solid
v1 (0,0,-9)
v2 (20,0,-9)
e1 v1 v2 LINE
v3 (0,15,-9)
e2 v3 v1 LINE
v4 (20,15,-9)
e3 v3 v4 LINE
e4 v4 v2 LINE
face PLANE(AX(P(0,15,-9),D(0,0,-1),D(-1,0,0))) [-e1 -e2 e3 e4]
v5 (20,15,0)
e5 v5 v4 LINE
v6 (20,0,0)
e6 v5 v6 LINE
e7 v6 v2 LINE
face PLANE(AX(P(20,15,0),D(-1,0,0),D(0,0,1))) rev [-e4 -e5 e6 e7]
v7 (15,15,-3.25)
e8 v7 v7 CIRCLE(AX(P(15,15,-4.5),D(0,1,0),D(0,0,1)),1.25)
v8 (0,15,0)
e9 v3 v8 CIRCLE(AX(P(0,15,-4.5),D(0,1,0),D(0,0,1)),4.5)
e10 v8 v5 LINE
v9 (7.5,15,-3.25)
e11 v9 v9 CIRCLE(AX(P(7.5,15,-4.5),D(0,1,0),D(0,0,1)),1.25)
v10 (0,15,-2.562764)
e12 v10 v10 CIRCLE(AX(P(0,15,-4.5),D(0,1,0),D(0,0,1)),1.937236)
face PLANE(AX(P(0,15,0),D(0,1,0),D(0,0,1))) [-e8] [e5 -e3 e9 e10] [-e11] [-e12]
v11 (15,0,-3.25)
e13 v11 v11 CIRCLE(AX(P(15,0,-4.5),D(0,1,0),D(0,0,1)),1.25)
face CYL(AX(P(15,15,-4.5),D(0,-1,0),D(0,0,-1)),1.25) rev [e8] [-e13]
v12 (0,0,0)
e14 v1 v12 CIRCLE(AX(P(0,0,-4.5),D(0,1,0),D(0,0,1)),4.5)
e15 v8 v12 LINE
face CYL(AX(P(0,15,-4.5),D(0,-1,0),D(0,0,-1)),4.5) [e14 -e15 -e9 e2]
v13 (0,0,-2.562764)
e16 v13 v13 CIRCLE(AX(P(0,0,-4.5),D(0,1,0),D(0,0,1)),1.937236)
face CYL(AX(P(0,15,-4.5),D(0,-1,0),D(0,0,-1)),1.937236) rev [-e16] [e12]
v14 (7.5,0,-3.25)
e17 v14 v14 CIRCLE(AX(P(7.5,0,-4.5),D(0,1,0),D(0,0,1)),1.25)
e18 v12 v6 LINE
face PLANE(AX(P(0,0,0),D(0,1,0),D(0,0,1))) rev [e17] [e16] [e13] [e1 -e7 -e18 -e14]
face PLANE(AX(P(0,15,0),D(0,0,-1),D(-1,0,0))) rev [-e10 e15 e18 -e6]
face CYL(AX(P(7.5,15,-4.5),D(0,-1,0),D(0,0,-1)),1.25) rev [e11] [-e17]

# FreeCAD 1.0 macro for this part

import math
import FreeCAD as App
import Part
import Sketcher
from FreeCAD import Vector
Q = App.Units.Quantity

doc = App.newDocument("Part")
body = doc.addObject("PartDesign::Body", "Body")

# Sketch on XZ plane
sketch1 = body.newObject("Sketcher::SketchObject", "Sketch")
sketch1.AttachmentSupport = (doc.getObject("XZ_Plane"), [""])
sketch1.MapMode = "FlatFace"
sketch1.addGeometry([
    Part.LineSegment(Vector(0, 0, 0), Vector(20, 0, 0)),  # 0
    Part.LineSegment(Vector(20, 0, 0), Vector(20, -9, 0)),  # 1
    Part.LineSegment(Vector(20, -9, 0), Vector(0, -9, 0)),  # 2
    Part.ArcOfCircle(Part.Circle(Vector(0, -4.5, 0), Vector(0, 0, 1), 4.5), math.radians(90), math.radians(270)),  # 3
    Part.Circle(Vector(0, -4.5, 0), Vector(0, 0, 1), 1.937236),  # 4
    Part.Circle(Vector(7.5, -4.5, 0), Vector(0, 0, 1), 1.25),  # 5
    Part.Circle(Vector(15, -4.5, 0), Vector(0, 0, 1), 1.25),  # 6
], False)
sketch1.addConstraint([
    Sketcher.Constraint("Coincident", 0, 2, 1, 1),
    Sketcher.Constraint("Coincident", 1, 2, 2, 1),
    Sketcher.Constraint("Tangent", 2, 2, 3, 2),
    Sketcher.Constraint("Tangent", 3, 1, 0, 1),
    Sketcher.Constraint("Horizontal", 0),
    Sketcher.Constraint("Vertical", 1),
    Sketcher.Constraint("Horizontal", 2),
    Sketcher.Constraint("Coincident", 3, 1, -1, 1),
    Sketcher.Constraint("Coincident", 4, 3, 3, 3),
    Sketcher.Constraint("Equal", 5, 6),
    Sketcher.Constraint("Horizontal", 4, 3, 5, 3),
    Sketcher.Constraint("Horizontal", 5, 3, 6, 3),
    Sketcher.Constraint("Diameter", 5, Q("2.5 mm")),
    Sketcher.Constraint("Radius", 3, Q("4.5 mm")),
    Sketcher.Constraint("DistanceX", 0, 1, 0, 2, Q("20 mm")),
    Sketcher.Constraint("DistanceX", -1, 1, 6, 3, Q("15 mm")),
    Sketcher.Constraint("DistanceX", -1, 1, 5, 3, Q("7.5 mm")),
    Sketcher.Constraint("Diameter", 4, Q("3.874472 mm")),
])
pad1 = body.newObject("PartDesign::Pad", "Pad")
pad1.Profile = sketch1
pad1.Length = 15
pad1.Reversed = True

doc.recompute()
